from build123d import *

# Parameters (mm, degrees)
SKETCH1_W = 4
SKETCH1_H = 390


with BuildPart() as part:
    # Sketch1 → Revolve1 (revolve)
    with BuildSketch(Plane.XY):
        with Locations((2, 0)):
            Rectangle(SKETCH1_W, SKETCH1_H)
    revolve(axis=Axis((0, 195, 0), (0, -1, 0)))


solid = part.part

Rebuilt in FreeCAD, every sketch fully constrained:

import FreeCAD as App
import Part
import Sketcher
from FreeCAD import Vector

doc = App.newDocument("Part")
params = doc.addObject("Spreadsheet::Sheet", "Params")
for row, (alias, value) in enumerate([
    ("sketch1_width", "4 mm"),
    ("sketch1_height", "390 mm"),
    ("revolution_angle", "360 deg"),
], start=1):
    params.set(f"A{row}", alias)
    params.set(f"B{row}", "=" + value)
    params.setAlias(f"B{row}", alias)

body = doc.addObject("PartDesign::Body", "Body")

# Sketch on XY plane
sketch1 = doc.addObject("Sketcher::SketchObject", "Sketch")
body.addObject(sketch1)
sketch1.AttachmentSupport = (doc.XY_Plane, [""])
sketch1.MapMode = "FlatFace"
sketch1.addGeometry([
    Part.LineSegment(Vector(0, 195, 0), Vector(0, -195, 0)),
    Part.LineSegment(Vector(0, -195, 0), Vector(4, -195, 0)),
    Part.LineSegment(Vector(4, -195, 0), Vector(4, 195, 0)),
    Part.LineSegment(Vector(4, 195, 0), Vector(0, 195, 0)),
], False)
sketch1.addConstraint([
    Sketcher.Constraint("Coincident", 0, 2, 1, 1),
    Sketcher.Constraint("Coincident", 1, 2, 2, 1),
    Sketcher.Constraint("Coincident", 2, 2, 3, 1),
    Sketcher.Constraint("Coincident", 3, 2, 0, 1),
    Sketcher.Constraint("Vertical", 0),
    Sketcher.Constraint("Horizontal", 1),
    Sketcher.Constraint("Vertical", 2),
    Sketcher.Constraint("Horizontal", 3),
    Sketcher.Constraint("Symmetric", 0, 2, 3, 2, -1, 1),
    Sketcher.Constraint("DistanceX", 1, 1, 1, 2, 4.0),
    Sketcher.Constraint("DistanceY", 0, 2, 0, 1, 390.0),
])
sketch1.setExpression("Constraints[9]", "Params.sketch1_width")
sketch1.setExpression("Constraints[10]", "Params.sketch1_height")
revolution = doc.addObject("PartDesign::Revolution", "Revolution")
body.addObject(revolution)
revolution.Profile = sketch1
revolution.ReferenceAxis = (sketch1, ["V_Axis"])
revolution.setExpression("Angle", "Params.revolution_angle")

doc.recompute()
